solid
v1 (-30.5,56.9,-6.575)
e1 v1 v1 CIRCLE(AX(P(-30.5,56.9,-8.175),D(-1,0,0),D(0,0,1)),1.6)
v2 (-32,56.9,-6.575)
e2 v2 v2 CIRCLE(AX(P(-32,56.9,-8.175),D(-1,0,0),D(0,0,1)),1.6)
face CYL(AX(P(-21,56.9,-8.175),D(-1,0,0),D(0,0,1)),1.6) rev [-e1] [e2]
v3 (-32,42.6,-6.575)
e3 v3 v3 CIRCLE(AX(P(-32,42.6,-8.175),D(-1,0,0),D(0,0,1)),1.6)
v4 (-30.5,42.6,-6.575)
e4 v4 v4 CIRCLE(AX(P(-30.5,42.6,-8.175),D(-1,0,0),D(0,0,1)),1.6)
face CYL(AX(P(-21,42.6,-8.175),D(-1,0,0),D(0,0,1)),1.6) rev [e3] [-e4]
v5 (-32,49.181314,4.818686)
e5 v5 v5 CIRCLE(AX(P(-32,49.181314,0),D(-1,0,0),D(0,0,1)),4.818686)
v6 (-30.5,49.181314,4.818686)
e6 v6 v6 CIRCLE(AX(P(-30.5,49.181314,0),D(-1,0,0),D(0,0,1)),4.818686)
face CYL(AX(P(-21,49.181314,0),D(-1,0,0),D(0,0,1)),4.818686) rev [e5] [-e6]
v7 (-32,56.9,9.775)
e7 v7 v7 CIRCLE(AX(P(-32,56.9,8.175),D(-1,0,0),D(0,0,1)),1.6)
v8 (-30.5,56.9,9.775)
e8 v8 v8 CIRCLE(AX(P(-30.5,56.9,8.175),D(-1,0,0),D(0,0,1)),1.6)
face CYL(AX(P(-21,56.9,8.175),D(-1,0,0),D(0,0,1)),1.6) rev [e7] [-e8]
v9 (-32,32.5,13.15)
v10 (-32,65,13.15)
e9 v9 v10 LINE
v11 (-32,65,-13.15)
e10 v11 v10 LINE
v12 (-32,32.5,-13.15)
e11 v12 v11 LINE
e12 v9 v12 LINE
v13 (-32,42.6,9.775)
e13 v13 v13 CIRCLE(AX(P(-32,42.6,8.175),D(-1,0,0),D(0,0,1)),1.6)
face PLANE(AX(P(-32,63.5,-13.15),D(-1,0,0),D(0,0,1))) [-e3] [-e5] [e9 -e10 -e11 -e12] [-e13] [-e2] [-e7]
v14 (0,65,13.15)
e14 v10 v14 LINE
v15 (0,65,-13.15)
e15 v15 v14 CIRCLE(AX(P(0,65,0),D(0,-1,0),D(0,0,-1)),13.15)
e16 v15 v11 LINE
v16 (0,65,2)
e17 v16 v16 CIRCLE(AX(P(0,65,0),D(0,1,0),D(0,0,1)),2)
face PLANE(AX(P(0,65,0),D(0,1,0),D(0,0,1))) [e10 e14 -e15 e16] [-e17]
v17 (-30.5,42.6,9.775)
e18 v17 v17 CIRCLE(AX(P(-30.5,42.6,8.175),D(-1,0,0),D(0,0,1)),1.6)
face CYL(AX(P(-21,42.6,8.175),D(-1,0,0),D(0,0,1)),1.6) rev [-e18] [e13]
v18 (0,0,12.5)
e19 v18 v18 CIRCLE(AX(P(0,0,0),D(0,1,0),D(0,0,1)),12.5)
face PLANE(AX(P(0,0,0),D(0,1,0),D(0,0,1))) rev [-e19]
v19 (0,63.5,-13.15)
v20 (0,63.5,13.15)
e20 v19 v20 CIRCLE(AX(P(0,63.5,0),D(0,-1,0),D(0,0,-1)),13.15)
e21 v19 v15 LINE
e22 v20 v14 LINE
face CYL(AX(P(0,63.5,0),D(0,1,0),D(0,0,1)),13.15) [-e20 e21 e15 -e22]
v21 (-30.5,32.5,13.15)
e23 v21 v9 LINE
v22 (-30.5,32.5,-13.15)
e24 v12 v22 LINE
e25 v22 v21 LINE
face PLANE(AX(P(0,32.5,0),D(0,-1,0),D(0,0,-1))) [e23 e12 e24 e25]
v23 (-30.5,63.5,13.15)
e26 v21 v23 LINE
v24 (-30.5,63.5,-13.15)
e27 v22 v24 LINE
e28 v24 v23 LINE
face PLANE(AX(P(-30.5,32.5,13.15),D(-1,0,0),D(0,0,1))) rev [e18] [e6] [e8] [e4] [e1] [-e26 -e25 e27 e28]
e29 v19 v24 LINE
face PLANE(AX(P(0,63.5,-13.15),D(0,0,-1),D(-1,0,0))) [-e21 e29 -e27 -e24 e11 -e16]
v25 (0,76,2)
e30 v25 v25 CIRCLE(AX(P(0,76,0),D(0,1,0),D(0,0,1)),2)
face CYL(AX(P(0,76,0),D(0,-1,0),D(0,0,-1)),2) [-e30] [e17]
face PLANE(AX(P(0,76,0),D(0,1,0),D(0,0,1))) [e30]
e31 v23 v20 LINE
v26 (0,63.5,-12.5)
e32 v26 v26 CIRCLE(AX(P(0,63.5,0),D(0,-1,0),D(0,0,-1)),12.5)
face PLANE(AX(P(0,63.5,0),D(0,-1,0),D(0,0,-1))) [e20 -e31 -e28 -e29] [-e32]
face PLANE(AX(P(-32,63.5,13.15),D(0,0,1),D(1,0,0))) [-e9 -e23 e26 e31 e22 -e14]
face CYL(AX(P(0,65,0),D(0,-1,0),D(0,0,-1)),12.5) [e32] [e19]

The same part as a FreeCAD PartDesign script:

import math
import FreeCAD as App
import Part
import Sketcher
from FreeCAD import Vector


def add_polygon(sketch, points):
    """Adds a closed chain of lines whose ends are joined by coincident constraints."""
    first, n = sketch.GeometryCount, len(points)
    for a, b in zip(points, points[1:] + points[:1]):
        sketch.addGeometry(Part.LineSegment(App.Vector(*a, 0), App.Vector(*b, 0)), False)
    for i in range(n):
        sketch.addConstraint(Sketcher.Constraint("Coincident", first + i, 2, first + (i + 1) % n, 1))

doc = App.newDocument("Part")
body = doc.addObject("PartDesign::Body", "Body")

# Sketch on XZ plane
sketch1 = body.newObject("Sketcher::SketchObject", "Sketch")
sketch1.AttachmentSupport = (doc.getObject("XZ_Plane"), [""])
sketch1.MapMode = "FlatFace"
sketch1.addGeometry(Part.Circle(Vector(0, 0, 0), Vector(0, 0, 1), 12), False)
sketch1.addConstraint(Sketcher.Constraint("Coincident", 0, 3, -1, 1))
sketch1.addConstraint(Sketcher.Constraint("Diameter", 0, 25.0))
pad1 = body.newObject("PartDesign::Pad", "Pad")
pad1.Profile = sketch1
pad1.Length = 65
pad1.Reversed = True

# Sketch on XZ plane
sketch2 = body.newObject("Sketcher::SketchObject", "Sketch001")
sketch2.AttachmentSupport = (doc.getObject("XZ_Plane"), [""])
sketch2.MapMode = "FlatFace"
sketch2.AttachmentOffset = App.Placement(Vector(0, 0, -65), App.Rotation())
sketch2.addGeometry(Part.Circle(Vector(0, 0, 0), Vector(0, 0, 1), 2), False)
sketch2.addConstraint(Sketcher.Constraint("Coincident", 0, 3, -1, 1))
sketch2.addConstraint(Sketcher.Constraint("Diameter", 0, 4.0))
pad2 = body.newObject("PartDesign::Pad", "Pad001")
pad2.Profile = sketch2
pad2.Length = 11
pad2.Reversed = True

# Sketch on XZ plane
sketch3 = body.newObject("Sketcher::SketchObject", "Sketch002")
sketch3.AttachmentSupport = (doc.getObject("XZ_Plane"), [""])
sketch3.MapMode = "FlatFace"
sketch3.AttachmentOffset = App.Placement(Vector(0, 0, -65), App.Rotation())
sketch3.addGeometry(Part.LineSegment(Vector(0, -13, 0), Vector(-32, -13, 0)), False)
sketch3.addGeometry(Part.LineSegment(Vector(-32, -13, 0), Vector(-32, 13, 0)), False)
sketch3.addGeometry(Part.LineSegment(Vector(-32, 13, 0), Vector(0, 13, 0)), False)
sketch3.addGeometry(Part.ArcOfCircle(Part.Circle(Vector(0, 0, 0), Vector(0, 0, 1), 13), math.radians(-90), math.radians(90)), False)
sketch3.addConstraint(Sketcher.Constraint("Coincident", 0, 2, 1, 1))
sketch3.addConstraint(Sketcher.Constraint("Coincident", 1, 2, 2, 1))
sketch3.addConstraint(Sketcher.Constraint("Tangent", 2, 2, 3, 2))
sketch3.addConstraint(Sketcher.Constraint("Tangent", 3, 1, 0, 1))
sketch3.addConstraint(Sketcher.Constraint("Horizontal", 0))
sketch3.addConstraint(Sketcher.Constraint("Vertical", 1))
sketch3.addConstraint(Sketcher.Constraint("Horizontal", 2))
sketch3.addConstraint(Sketcher.Constraint("Coincident", 3, 3, -1, 1))
sketch3.addConstraint(Sketcher.Constraint("DistanceX", 0, 2, 0, 1, 32.0))
sketch3.addConstraint(Sketcher.Constraint("Radius", 3, 13.15))
pad3 = body.newObject("PartDesign::Pad", "Pad002")
pad3.Profile = sketch3
pad3.Length = 1.5

# Sketch on XZ plane
sketch4 = body.newObject("Sketcher::SketchObject", "Sketch003")
sketch4.AttachmentSupport = (doc.getObject("XZ_Plane"), [""])
sketch4.MapMode = "FlatFace"
sketch4.AttachmentOffset = App.Placement(Vector(0, 0, -63.5), App.Rotation())
add_polygon(sketch4, [(-32, 13.2), (-32, -13.2), (-30.5, -13.2), (-30.5, 13.2)])  # lines 0-3
sketch4.addConstraint(Sketcher.Constraint("Vertical", 0))
sketch4.addConstraint(Sketcher.Constraint("Horizontal", 1))
sketch4.addConstraint(Sketcher.Constraint("Vertical", 2))
sketch4.addConstraint(Sketcher.Constraint("Horizontal", 3))
sketch4.addConstraint(Sketcher.Constraint("DistanceX", 1, 1, 1, 2, 1.5))
sketch4.addConstraint(Sketcher.Constraint("DistanceY", 0, 2, 0, 1, 26.3))
sketch4.addConstraint(Sketcher.Constraint("DistanceX", 0, 2, -1, 1, 32.0))
sketch4.addConstraint(Sketcher.Constraint("DistanceY", 0, 2, -1, 1, 13.15))
pad4 = body.newObject("PartDesign::Pad", "Pad003")
pad4.Profile = sketch4
pad4.Length = 31

# Sketch on YZ plane
sketch5 = body.newObject("Sketcher::SketchObject", "Sketch004")
sketch5.AttachmentSupport = (doc.getObject("YZ_Plane"), [""])
sketch5.MapMode = "FlatFace"
sketch5.AttachmentOffset = App.Placement(Vector(0, 0, -32), App.Rotation())
sketch5.addGeometry(Part.Circle(Vector(49.2, 0, 0), Vector(0, 0, 1), 4.8), False)
sketch5.addGeometry(Part.Circle(Vector(56.9, -8.2, 0), Vector(0, 0, 1), 1.6), False)
sketch5.addGeometry(Part.Circle(Vector(56.9, 8.2, 0), Vector(0, 0, 1), 1.6), False)
sketch5.addGeometry(Part.Circle(Vector(42.6, 8.2, 0), Vector(0, 0, 1), 1.6), False)
sketch5.addGeometry(Part.Circle(Vector(42.6, -8.2, 0), Vector(0, 0, 1), 1.6), False)
sketch5.addConstraint(Sketcher.Constraint("Equal", 1, 2))
sketch5.addConstraint(Sketcher.Constraint("Equal", 2, 3))
sketch5.addConstraint(Sketcher.Constraint("Equal", 3, 4))
sketch5.addConstraint(Sketcher.Constraint("Symmetric", 1, 3, 2, 3, -1))
sketch5.addConstraint(Sketcher.Constraint("Symmetric", 3, 3, 4, 3, -1))
sketch5.addConstraint(Sketcher.Constraint("PointOnObject", 0, 3, -1))
sketch5.addConstraint(Sketcher.Constraint("Horizontal", 2, 3, 3, 3))
sketch5.addConstraint(Sketcher.Constraint("Diameter", 1, 3.2))
sketch5.addConstraint(Sketcher.Constraint("DistanceX", -1, 1, 1, 3, 56.9))
sketch5.addConstraint(Sketcher.Constraint("DistanceX", -1, 1, 3, 3, 42.6))
sketch5.addConstraint(Sketcher.Constraint("Diameter", 0, 9.637372))
sketch5.addConstraint(Sketcher.Constraint("DistanceY", 1, 3, 2, 3, 16.35))
sketch5.addConstraint(Sketcher.Constraint("DistanceX", -1, 1, 0, 3, 49.181314))
pocket1 = body.newObject("PartDesign::Pocket", "Pocket")
pocket1.Profile = sketch5
pocket1.Length = 11
pocket1.Reversed = True

doc.recompute()
